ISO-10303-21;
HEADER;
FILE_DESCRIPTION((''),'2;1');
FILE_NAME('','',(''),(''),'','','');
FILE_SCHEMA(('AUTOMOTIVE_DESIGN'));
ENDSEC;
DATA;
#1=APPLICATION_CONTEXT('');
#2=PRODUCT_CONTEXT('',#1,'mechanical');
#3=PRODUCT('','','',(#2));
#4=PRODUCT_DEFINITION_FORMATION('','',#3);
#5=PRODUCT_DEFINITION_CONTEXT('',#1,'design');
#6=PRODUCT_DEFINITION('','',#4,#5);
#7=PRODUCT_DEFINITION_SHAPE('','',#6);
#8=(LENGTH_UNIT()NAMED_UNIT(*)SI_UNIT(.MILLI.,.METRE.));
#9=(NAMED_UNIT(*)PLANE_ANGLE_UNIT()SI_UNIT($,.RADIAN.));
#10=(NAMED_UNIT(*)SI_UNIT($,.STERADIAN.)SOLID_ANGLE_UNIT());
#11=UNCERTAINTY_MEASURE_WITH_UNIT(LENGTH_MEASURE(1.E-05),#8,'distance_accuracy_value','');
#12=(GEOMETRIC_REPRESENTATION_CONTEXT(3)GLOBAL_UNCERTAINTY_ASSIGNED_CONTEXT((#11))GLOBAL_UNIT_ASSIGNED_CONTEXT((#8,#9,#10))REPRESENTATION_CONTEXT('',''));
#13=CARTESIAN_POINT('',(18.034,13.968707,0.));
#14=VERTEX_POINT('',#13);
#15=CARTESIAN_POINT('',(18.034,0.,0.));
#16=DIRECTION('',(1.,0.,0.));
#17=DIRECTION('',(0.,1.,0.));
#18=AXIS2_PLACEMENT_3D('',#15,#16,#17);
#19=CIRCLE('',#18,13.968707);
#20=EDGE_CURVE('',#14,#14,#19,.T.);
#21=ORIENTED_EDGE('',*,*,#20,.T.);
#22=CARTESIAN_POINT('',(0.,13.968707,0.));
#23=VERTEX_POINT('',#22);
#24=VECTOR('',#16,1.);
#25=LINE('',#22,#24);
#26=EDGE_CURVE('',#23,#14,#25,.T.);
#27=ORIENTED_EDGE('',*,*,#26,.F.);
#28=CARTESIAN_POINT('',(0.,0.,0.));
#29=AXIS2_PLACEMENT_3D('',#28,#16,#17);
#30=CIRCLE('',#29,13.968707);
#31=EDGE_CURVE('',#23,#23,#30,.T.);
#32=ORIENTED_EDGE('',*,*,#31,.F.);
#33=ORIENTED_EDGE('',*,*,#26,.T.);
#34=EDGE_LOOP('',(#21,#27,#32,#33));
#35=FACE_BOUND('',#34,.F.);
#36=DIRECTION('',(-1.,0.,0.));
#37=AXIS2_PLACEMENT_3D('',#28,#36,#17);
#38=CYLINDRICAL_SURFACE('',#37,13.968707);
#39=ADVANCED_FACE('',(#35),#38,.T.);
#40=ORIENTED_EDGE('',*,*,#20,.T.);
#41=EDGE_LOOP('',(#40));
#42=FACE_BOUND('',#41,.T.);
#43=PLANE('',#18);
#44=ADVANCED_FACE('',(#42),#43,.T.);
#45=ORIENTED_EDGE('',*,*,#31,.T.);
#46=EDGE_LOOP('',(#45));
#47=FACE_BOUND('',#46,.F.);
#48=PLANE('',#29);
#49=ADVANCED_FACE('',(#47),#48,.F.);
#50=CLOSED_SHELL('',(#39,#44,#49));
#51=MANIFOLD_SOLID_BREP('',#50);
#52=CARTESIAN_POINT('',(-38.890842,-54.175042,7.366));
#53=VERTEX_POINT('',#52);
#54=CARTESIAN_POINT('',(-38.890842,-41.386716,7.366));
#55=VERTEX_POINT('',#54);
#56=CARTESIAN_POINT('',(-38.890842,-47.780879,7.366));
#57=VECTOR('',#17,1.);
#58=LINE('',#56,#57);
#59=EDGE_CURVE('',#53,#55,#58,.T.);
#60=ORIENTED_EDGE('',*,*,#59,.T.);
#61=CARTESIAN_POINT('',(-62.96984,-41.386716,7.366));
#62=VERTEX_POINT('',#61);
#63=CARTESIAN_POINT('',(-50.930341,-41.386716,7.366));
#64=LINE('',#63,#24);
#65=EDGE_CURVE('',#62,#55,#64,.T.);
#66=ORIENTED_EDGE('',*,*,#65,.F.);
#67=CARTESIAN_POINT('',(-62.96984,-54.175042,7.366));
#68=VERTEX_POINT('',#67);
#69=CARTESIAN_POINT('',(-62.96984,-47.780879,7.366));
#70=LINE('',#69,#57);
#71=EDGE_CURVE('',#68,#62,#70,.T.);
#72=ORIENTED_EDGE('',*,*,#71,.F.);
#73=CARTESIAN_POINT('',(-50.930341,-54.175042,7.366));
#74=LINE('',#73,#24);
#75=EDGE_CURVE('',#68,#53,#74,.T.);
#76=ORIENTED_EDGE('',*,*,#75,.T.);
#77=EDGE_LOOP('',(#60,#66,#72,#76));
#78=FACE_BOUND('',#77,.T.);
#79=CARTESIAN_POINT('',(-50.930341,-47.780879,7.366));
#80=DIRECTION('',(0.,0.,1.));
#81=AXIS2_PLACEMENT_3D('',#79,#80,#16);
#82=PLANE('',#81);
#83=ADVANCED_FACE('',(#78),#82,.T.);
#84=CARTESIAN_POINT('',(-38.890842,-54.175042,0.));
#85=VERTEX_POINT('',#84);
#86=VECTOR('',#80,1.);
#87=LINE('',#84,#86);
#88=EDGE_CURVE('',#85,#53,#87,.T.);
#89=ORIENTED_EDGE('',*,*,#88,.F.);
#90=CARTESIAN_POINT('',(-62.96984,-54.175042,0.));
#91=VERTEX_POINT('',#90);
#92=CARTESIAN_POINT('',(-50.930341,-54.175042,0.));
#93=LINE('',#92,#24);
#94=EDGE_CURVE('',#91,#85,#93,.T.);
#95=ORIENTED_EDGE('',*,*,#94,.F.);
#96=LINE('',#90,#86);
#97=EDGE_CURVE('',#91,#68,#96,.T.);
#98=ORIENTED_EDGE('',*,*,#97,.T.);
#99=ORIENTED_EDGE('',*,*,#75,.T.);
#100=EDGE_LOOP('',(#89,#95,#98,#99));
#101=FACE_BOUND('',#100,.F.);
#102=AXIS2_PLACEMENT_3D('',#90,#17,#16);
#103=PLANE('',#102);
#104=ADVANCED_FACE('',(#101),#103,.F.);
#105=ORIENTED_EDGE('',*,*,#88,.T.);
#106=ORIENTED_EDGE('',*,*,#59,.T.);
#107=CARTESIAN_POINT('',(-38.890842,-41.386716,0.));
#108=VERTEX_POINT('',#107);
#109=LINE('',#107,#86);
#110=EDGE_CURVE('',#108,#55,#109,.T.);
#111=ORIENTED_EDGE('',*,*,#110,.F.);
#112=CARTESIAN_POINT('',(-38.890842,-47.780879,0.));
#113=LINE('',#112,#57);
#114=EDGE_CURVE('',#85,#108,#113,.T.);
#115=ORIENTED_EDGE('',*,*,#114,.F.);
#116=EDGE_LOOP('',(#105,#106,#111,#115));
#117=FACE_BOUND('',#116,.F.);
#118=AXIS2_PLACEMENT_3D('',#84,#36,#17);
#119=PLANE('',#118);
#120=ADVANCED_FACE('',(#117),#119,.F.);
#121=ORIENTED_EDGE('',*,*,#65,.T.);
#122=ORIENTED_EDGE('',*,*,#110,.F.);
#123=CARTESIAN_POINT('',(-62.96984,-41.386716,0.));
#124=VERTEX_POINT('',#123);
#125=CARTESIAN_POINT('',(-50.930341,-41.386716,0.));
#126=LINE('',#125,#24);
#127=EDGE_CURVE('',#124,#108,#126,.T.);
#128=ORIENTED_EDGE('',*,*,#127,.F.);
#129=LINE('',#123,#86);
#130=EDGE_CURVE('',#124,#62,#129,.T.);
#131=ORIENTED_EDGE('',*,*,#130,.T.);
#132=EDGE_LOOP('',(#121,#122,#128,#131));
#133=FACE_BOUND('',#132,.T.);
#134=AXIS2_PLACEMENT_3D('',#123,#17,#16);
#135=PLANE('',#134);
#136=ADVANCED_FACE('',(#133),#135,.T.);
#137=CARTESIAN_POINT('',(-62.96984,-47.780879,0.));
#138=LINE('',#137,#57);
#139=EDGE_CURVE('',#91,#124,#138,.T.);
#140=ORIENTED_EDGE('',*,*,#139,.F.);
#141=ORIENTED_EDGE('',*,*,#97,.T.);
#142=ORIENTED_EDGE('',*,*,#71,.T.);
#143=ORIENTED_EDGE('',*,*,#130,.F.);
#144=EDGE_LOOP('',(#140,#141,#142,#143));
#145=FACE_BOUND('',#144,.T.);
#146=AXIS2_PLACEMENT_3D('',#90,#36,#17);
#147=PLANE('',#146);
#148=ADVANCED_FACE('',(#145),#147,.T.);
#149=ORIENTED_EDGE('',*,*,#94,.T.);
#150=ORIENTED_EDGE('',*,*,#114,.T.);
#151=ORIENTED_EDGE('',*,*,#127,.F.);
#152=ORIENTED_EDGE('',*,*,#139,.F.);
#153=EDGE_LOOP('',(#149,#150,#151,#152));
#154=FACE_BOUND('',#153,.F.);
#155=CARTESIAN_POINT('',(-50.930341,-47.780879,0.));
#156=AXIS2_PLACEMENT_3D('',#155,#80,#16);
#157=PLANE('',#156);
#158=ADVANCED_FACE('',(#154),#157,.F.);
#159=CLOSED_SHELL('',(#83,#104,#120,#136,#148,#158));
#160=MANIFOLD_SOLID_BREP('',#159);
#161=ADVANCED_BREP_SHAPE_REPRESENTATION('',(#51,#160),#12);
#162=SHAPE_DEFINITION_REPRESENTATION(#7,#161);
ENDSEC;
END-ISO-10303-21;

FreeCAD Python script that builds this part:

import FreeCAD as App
import Part
import Sketcher

V = App.Vector
Q = App.Units.Quantity


def add_polygon(sketch, points):
    """Adds a closed chain of lines whose ends are joined by coincident constraints."""
    first, n = sketch.GeometryCount, len(points)
    for a, b in zip(points, points[1:] + points[:1]):
        sketch.addGeometry(Part.LineSegment(App.Vector(*a, 0), App.Vector(*b, 0)), False)
    for i in range(n):
        sketch.addConstraint(Sketcher.Constraint("Coincident", first + i, 2, first + (i + 1) % n, 1))

doc = App.newDocument("Part")
body = doc.addObject("PartDesign::Body", "Body")

# Sketch on XY plane
sketch1 = body.newObject("Sketcher::SketchObject", "Sketch")
sketch1.AttachmentSupport = (doc.getObject("XY_Plane"), [""])
sketch1.MapMode = "FlatFace"
add_polygon(sketch1, [(-63, -41), (-63, -54), (-39, -54), (-39, -41)])  # lines 0-3
sketch1.addConstraint([
    Sketcher.Constraint("Vertical", 0),
    Sketcher.Constraint("Horizontal", 1),
    Sketcher.Constraint("Vertical", 2),
    Sketcher.Constraint("Horizontal", 3),
    Sketcher.Constraint("DistanceX", 1, 1, 1, 2, Q("24.078999 mm")),
    Sketcher.Constraint("DistanceY", 0, 2, 0, 1, Q("12.788326 mm")),
    Sketcher.Constraint("DistanceX", 0, 2, -1, 1, Q("62.96984 mm")),
    Sketcher.Constraint("DistanceY", 0, 2, -1, 1, Q("54.175042 mm")),
])
pad1 = body.newObject("PartDesign::Pad", "Pad")
pad1.Profile = sketch1
pad1.Length = Q("0.29 in")
body2 = doc.addObject("PartDesign::Body", "Body001")

# Sketch on YZ plane
sketch2 = body2.newObject("Sketcher::SketchObject", "Sketch001")
sketch2.AttachmentSupport = (doc.getObject("YZ_Plane001"), [""])
sketch2.MapMode = "FlatFace"
sketch2.addGeometry(Part.Circle(V(0, 0, 0), V(0, 0, 1), 14), False)
sketch2.addConstraint([
    Sketcher.Constraint("Coincident", 0, 3, -1, 1),
    Sketcher.Constraint("Diameter", 0, Q("27.937414 mm")),
])
pad2 = body2.newObject("PartDesign::Pad", "Pad001")
pad2.Profile = sketch2
pad2.Length = Q("0.71 in")

doc.recompute()
